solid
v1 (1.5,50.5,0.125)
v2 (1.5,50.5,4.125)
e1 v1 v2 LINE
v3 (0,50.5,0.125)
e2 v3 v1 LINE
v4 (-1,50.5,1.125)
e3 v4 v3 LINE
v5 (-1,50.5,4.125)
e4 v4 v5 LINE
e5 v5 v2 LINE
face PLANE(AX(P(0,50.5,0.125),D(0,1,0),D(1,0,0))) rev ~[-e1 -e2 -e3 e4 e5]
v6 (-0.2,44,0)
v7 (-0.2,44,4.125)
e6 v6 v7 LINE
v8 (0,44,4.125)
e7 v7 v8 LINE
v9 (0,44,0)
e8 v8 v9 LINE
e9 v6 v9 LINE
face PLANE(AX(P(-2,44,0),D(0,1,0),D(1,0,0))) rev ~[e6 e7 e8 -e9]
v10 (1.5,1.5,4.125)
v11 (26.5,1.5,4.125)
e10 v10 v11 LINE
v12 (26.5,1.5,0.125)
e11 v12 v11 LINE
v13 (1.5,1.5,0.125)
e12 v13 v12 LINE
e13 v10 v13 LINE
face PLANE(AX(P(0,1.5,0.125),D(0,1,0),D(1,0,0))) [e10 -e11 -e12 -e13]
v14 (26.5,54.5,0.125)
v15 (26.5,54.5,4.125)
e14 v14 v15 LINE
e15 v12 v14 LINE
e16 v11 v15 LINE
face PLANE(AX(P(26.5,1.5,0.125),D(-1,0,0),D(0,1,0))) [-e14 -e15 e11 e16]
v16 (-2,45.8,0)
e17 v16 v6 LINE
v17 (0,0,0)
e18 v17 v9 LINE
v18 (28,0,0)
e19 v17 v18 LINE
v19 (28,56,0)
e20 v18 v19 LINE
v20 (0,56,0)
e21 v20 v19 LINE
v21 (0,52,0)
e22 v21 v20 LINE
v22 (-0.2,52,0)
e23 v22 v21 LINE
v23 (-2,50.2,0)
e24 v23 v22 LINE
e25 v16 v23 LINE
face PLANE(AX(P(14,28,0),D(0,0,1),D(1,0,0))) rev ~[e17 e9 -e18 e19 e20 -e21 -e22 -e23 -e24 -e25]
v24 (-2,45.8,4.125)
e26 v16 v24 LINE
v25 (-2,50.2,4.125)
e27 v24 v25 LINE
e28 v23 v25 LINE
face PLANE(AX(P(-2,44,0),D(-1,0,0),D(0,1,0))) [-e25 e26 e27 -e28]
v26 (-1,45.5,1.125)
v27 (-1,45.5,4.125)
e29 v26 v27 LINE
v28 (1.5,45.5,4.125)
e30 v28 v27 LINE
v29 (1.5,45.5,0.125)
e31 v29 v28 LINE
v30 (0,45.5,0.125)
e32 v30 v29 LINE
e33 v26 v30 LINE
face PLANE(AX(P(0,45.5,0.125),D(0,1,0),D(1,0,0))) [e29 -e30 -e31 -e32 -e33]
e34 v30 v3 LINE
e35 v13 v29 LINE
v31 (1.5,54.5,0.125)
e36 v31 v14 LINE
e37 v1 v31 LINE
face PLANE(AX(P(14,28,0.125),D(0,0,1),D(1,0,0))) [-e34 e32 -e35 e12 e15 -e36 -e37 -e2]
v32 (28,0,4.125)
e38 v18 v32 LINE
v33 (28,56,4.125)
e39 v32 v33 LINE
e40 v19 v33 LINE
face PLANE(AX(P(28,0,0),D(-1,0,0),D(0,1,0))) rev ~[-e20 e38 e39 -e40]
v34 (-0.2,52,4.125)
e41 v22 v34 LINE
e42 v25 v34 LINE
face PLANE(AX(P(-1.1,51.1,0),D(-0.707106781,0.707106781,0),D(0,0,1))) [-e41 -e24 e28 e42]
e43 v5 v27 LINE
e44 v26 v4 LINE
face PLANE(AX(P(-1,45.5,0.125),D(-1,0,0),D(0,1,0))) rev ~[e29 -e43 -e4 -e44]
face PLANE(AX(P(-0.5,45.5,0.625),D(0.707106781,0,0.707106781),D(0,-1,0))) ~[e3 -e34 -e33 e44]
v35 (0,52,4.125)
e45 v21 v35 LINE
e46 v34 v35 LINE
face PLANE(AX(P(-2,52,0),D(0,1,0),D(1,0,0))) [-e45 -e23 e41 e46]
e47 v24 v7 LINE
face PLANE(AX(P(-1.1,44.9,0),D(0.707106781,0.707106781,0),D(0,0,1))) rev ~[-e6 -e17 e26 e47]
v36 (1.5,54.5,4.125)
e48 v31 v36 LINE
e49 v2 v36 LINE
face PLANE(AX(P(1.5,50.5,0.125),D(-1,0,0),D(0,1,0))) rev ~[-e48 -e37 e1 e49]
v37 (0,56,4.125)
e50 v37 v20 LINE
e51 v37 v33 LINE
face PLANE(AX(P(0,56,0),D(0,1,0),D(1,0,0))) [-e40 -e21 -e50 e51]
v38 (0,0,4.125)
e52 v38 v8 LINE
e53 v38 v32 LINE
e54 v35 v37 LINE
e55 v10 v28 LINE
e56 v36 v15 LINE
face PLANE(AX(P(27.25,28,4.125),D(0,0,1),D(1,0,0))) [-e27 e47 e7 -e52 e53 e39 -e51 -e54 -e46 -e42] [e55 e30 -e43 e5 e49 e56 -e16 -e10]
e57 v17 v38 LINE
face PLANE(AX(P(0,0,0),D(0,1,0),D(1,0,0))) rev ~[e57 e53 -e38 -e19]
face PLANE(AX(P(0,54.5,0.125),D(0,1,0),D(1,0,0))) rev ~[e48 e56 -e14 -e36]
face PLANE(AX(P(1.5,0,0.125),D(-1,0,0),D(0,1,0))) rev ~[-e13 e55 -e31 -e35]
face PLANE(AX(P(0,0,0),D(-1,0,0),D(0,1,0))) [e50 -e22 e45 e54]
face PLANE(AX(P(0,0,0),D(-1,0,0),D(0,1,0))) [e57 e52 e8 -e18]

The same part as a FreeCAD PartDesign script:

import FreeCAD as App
import Part
import Sketcher
from FreeCAD import Vector
Q = App.Units.Quantity


def edges_at(feature, points):
    """Names of the edges that pass closest to the given points."""
    edges = feature.Shape.Edges
    near = lambda p: min(range(len(edges)), key=lambda i: edges[i].distToShape(Part.Vertex(*p))[0])
    return sorted({f"Edge{near(p) + 1}" for p in points})

doc = App.newDocument("Part")
body = doc.addObject("PartDesign::Body", "Body")

# Sketch on XY plane
sketch1 = body.newObject("Sketcher::SketchObject", "Sketch")
sketch1.AttachmentSupport = (doc.getObject("XY_Plane"), [""])
sketch1.MapMode = "FlatFace"
sketch1.addGeometry(Part.LineSegment(Vector(0, 56, 0), Vector(0, 0, 0)), False)
sketch1.addGeometry(Part.LineSegment(Vector(0, 0, 0), Vector(28, 0, 0)), False)
sketch1.addGeometry(Part.LineSegment(Vector(28, 0, 0), Vector(28, 56, 0)), False)
sketch1.addGeometry(Part.LineSegment(Vector(28, 56, 0), Vector(0, 56, 0)), False)
sketch1.addConstraint(Sketcher.Constraint("Coincident", 0, 2, 1, 1))
sketch1.addConstraint(Sketcher.Constraint("Coincident", 1, 2, 2, 1))
sketch1.addConstraint(Sketcher.Constraint("Coincident", 2, 2, 3, 1))
sketch1.addConstraint(Sketcher.Constraint("Coincident", 3, 2, 0, 1))
sketch1.addConstraint(Sketcher.Constraint("Vertical", 0))
sketch1.addConstraint(Sketcher.Constraint("Horizontal", 1))
sketch1.addConstraint(Sketcher.Constraint("Vertical", 2))
sketch1.addConstraint(Sketcher.Constraint("Horizontal", 3))
sketch1.addConstraint(Sketcher.Constraint("Coincident", 0, 2, -1, 1))
sketch1.addConstraint(Sketcher.Constraint("DistanceX", 1, 1, 1, 2, Q("28 mm")))
sketch1.addConstraint(Sketcher.Constraint("DistanceY", 0, 2, 0, 1, Q("56 mm")))
pad1 = body.newObject("PartDesign::Pad", "Pad")
pad1.Profile = sketch1
pad1.Length = 0.125
body2 = doc.addObject("PartDesign::Body", "Body001")
body2.AllowCompound = True

# Sketch on XY plane
sketch2 = body2.newObject("Sketcher::SketchObject", "Sketch001")
sketch2.AttachmentSupport = (doc.getObject("XY_Plane001"), [""])
sketch2.MapMode = "FlatFace"
sketch2.AttachmentOffset = App.Placement(Vector(0, 0, 0.125), App.Rotation())
sketch2.addGeometry(Part.LineSegment(Vector(0, 45.5, 0), Vector(0, 0, 0)), False)
sketch2.addGeometry(Part.LineSegment(Vector(0, 0, 0), Vector(1.5, 0, 0)), False)
sketch2.addGeometry(Part.LineSegment(Vector(1.5, 0, 0), Vector(1.5, 45.5, 0)), False)
sketch2.addGeometry(Part.LineSegment(Vector(1.5, 45.5, 0), Vector(0, 45.5, 0)), False)
sketch2.addGeometry(Part.LineSegment(Vector(0, 54.5, 0), Vector(0, 50.5, 0)), False)
sketch2.addGeometry(Part.LineSegment(Vector(0, 50.5, 0), Vector(1.5, 50.5, 0)), False)
sketch2.addGeometry(Part.LineSegment(Vector(1.5, 50.5, 0), Vector(1.5, 54.5, 0)), False)
sketch2.addGeometry(Part.LineSegment(Vector(1.5, 54.5, 0), Vector(0, 54.5, 0)), False)
sketch2.addConstraint(Sketcher.Constraint("Coincident", 0, 2, 1, 1))
sketch2.addConstraint(Sketcher.Constraint("Coincident", 1, 2, 2, 1))
sketch2.addConstraint(Sketcher.Constraint("Coincident", 2, 2, 3, 1))
sketch2.addConstraint(Sketcher.Constraint("Coincident", 3, 2, 0, 1))
sketch2.addConstraint(Sketcher.Constraint("Coincident", 4, 2, 5, 1))
sketch2.addConstraint(Sketcher.Constraint("Coincident", 5, 2, 6, 1))
sketch2.addConstraint(Sketcher.Constraint("Coincident", 6, 2, 7, 1))
sketch2.addConstraint(Sketcher.Constraint("Coincident", 7, 2, 4, 1))
sketch2.addConstraint(Sketcher.Constraint("Vertical", 0))
sketch2.addConstraint(Sketcher.Constraint("Horizontal", 1))
sketch2.addConstraint(Sketcher.Constraint("Vertical", 2))
sketch2.addConstraint(Sketcher.Constraint("Horizontal", 3))
sketch2.addConstraint(Sketcher.Constraint("Vertical", 4))
sketch2.addConstraint(Sketcher.Constraint("Horizontal", 5))
sketch2.addConstraint(Sketcher.Constraint("Vertical", 6))
sketch2.addConstraint(Sketcher.Constraint("Horizontal", 7))
sketch2.addConstraint(Sketcher.Constraint("Coincident", 0, 2, -1, 1))
sketch2.addConstraint(Sketcher.Constraint("PointOnObject", 4, 2, -2))
sketch2.addConstraint(Sketcher.Constraint("Vertical", 2, 2, 5, 2))
sketch2.addConstraint(Sketcher.Constraint("DistanceY", 4, 2, 4, 1, Q("4 mm")))
sketch2.addConstraint(Sketcher.Constraint("DistanceX", 1, 1, 1, 2, Q("1.5 mm")))
sketch2.addConstraint(Sketcher.Constraint("DistanceY", 0, 2, 0, 1, Q("45.5 mm")))
sketch2.addConstraint(Sketcher.Constraint("DistanceY", 3, 2, 4, 2, Q("5 mm")))
pad2 = body2.newObject("PartDesign::Pad", "Pad001")
pad2.Profile = sketch2
pad2.Length = 4
body3 = doc.addObject("PartDesign::Body", "Body002")

# Sketch on XY plane
sketch3 = body3.newObject("Sketcher::SketchObject", "Sketch002")
sketch3.AttachmentSupport = (doc.getObject("XY_Plane002"), [""])
sketch3.MapMode = "FlatFace"
sketch3.AttachmentOffset = App.Placement(Vector(0, 0, 0.125), App.Rotation())
sketch3.addGeometry(Part.LineSegment(Vector(0, 1.5, 0), Vector(0, 0, 0)), False)
sketch3.addGeometry(Part.LineSegment(Vector(0, 0, 0), Vector(28, 0, 0)), False)
sketch3.addGeometry(Part.LineSegment(Vector(28, 0, 0), Vector(28, 1.5, 0)), False)
sketch3.addGeometry(Part.LineSegment(Vector(28, 1.5, 0), Vector(0, 1.5, 0)), False)
sketch3.addConstraint(Sketcher.Constraint("Coincident", 0, 2, 1, 1))
sketch3.addConstraint(Sketcher.Constraint("Coincident", 1, 2, 2, 1))
sketch3.addConstraint(Sketcher.Constraint("Coincident", 2, 2, 3, 1))
sketch3.addConstraint(Sketcher.Constraint("Coincident", 3, 2, 0, 1))
sketch3.addConstraint(Sketcher.Constraint("Vertical", 0))
sketch3.addConstraint(Sketcher.Constraint("Horizontal", 1))
sketch3.addConstraint(Sketcher.Constraint("Vertical", 2))
sketch3.addConstraint(Sketcher.Constraint("Horizontal", 3))
sketch3.addConstraint(Sketcher.Constraint("Coincident", 0, 2, -1, 1))
sketch3.addConstraint(Sketcher.Constraint("DistanceX", 1, 1, 1, 2, Q("28 mm")))
sketch3.addConstraint(Sketcher.Constraint("DistanceY", 0, 2, 0, 1, Q("1.5 mm")))
pad3 = body3.newObject("PartDesign::Pad", "Pad002")
pad3.Profile = sketch3
pad3.Length = 4
body4 = doc.addObject("PartDesign::Body", "Body003")

# Sketch on XY plane
sketch4 = body4.newObject("Sketcher::SketchObject", "Sketch003")
sketch4.AttachmentSupport = (doc.getObject("XY_Plane003"), [""])
sketch4.MapMode = "FlatFace"
sketch4.AttachmentOffset = App.Placement(Vector(0, 0, 0.125), App.Rotation())
sketch4.addGeometry(Part.LineSegment(Vector(26.5, 54.5, 0), Vector(26.5, 1.5, 0)), False)
sketch4.addGeometry(Part.LineSegment(Vector(26.5, 1.5, 0), Vector(28, 1.5, 0)), False)
sketch4.addGeometry(Part.LineSegment(Vector(28, 1.5, 0), Vector(28, 54.5, 0)), False)
sketch4.addGeometry(Part.LineSegment(Vector(28, 54.5, 0), Vector(26.5, 54.5, 0)), False)
sketch4.addConstraint(Sketcher.Constraint("Coincident", 0, 2, 1, 1))
sketch4.addConstraint(Sketcher.Constraint("Coincident", 1, 2, 2, 1))
sketch4.addConstraint(Sketcher.Constraint("Coincident", 2, 2, 3, 1))
sketch4.addConstraint(Sketcher.Constraint("Coincident", 3, 2, 0, 1))
sketch4.addConstraint(Sketcher.Constraint("Vertical", 0))
sketch4.addConstraint(Sketcher.Constraint("Horizontal", 1))
sketch4.addConstraint(Sketcher.Constraint("Vertical", 2))
sketch4.addConstraint(Sketcher.Constraint("Horizontal", 3))
sketch4.addConstraint(Sketcher.Constraint("DistanceY", 0, 2, 0, 1, Q("53 mm")))
sketch4.addConstraint(Sketcher.Constraint("DistanceX", 1, 1, 1, 2, Q("1.5 mm")))
sketch4.addConstraint(Sketcher.Constraint("DistanceX", -1, 1, 1, 2, Q("28 mm")))
sketch4.addConstraint(Sketcher.Constraint("DistanceY", -1, 1, 0, 2, Q("1.5 mm")))
pad4 = body4.newObject("PartDesign::Pad", "Pad003")
pad4.Profile = sketch4
pad4.Length = 4
body5 = doc.addObject("PartDesign::Body", "Body004")
body5.AllowCompound = True

# Sketch on XY plane
sketch5 = body5.newObject("Sketcher::SketchObject", "Sketch004")
sketch5.AttachmentSupport = (doc.getObject("XY_Plane004"), [""])
sketch5.MapMode = "FlatFace"
sketch5.AttachmentOffset = App.Placement(Vector(0, 0, 0.125), App.Rotation())
sketch5.addGeometry(Part.LineSegment(Vector(0, 56, 0), Vector(0, 54.5, 0)), False)
sketch5.addGeometry(Part.LineSegment(Vector(0, 54.5, 0), Vector(28, 54.5, 0)), False)
sketch5.addGeometry(Part.LineSegment(Vector(28, 54.5, 0), Vector(28, 56, 0)), False)
sketch5.addGeometry(Part.LineSegment(Vector(28, 56, 0), Vector(0, 56, 0)), False)
sketch5.addConstraint(Sketcher.Constraint("Coincident", 0, 2, 1, 1))
sketch5.addConstraint(Sketcher.Constraint("Coincident", 1, 2, 2, 1))
sketch5.addConstraint(Sketcher.Constraint("Coincident", 2, 2, 3, 1))
sketch5.addConstraint(Sketcher.Constraint("Coincident", 3, 2, 0, 1))
sketch5.addConstraint(Sketcher.Constraint("Vertical", 0))
sketch5.addConstraint(Sketcher.Constraint("Horizontal", 1))
sketch5.addConstraint(Sketcher.Constraint("Vertical", 2))
sketch5.addConstraint(Sketcher.Constraint("Horizontal", 3))
sketch5.addConstraint(Sketcher.Constraint("PointOnObject", 0, 2, -2))
sketch5.addConstraint(Sketcher.Constraint("DistanceX", 1, 1, 1, 2, Q("28 mm")))
sketch5.addConstraint(Sketcher.Constraint("DistanceY", 0, 2, 0, 1, Q("1.5 mm")))
sketch5.addConstraint(Sketcher.Constraint("DistanceY", -1, 1, 2, 2, Q("56 mm")))
pad5 = body5.newObject("PartDesign::Pad", "Pad004")
pad5.Profile = sketch5
pad5.Length = 4
doc.recompute()

boolean = body5.newObject("PartDesign::Boolean", "Boolean")
boolean.Type = "Fuse"
boolean.addObjects([body2])
doc.recompute()

boolean2 = body5.newObject("PartDesign::Boolean", "Boolean001")
boolean2.Type = "Fuse"
boolean2.addObjects([body3])
doc.recompute()

boolean3 = body5.newObject("PartDesign::Boolean", "Boolean002")
boolean3.Type = "Fuse"
boolean3.addObjects([body4])
body6 = doc.addObject("PartDesign::Body", "Body005")

# Sketch on XY plane
sketch6 = body6.newObject("Sketcher::SketchObject", "Sketch005")
sketch6.AttachmentSupport = (doc.getObject("XY_Plane005"), [""])
sketch6.MapMode = "FlatFace"
sketch6.AttachmentOffset = App.Placement(Vector(0, 0, 0.125), App.Rotation())
sketch6.addGeometry(Part.LineSegment(Vector(-1, 50, 0), Vector(-1, 46, 0)), False)
sketch6.addGeometry(Part.LineSegment(Vector(-1, 46, 0), Vector(4, 46, 0)), False)
sketch6.addGeometry(Part.LineSegment(Vector(4, 46, 0), Vector(4, 50, 0)), False)
sketch6.addGeometry(Part.LineSegment(Vector(4, 50, 0), Vector(-1, 50, 0)), False)
sketch6.addConstraint(Sketcher.Constraint("Coincident", 0, 2, 1, 1))
sketch6.addConstraint(Sketcher.Constraint("Coincident", 1, 2, 2, 1))
sketch6.addConstraint(Sketcher.Constraint("Coincident", 2, 2, 3, 1))
sketch6.addConstraint(Sketcher.Constraint("Coincident", 3, 2, 0, 1))
sketch6.addConstraint(Sketcher.Constraint("Vertical", 0))
sketch6.addConstraint(Sketcher.Constraint("Horizontal", 1))
sketch6.addConstraint(Sketcher.Constraint("Vertical", 2))
sketch6.addConstraint(Sketcher.Constraint("Horizontal", 3))
sketch6.addConstraint(Sketcher.Constraint("Equal", 3, 0))
sketch6.addConstraint(Sketcher.Constraint("DistanceX", 1, 1, 1, 2, Q("5 mm")))
sketch6.addConstraint(Sketcher.Constraint("DistanceX", 0, 2, -1, 1, Q("1 mm")))
sketch6.addConstraint(Sketcher.Constraint("DistanceY", -1, 1, 0, 2, Q("45.5 mm")))
pad6 = body6.newObject("PartDesign::Pad", "Pad005")
pad6.Profile = sketch6
pad6.Length = 5
doc.recompute()

chamfer = body6.newObject("PartDesign::Chamfer", "Chamfer")
chamfer.Base = (pad6, edges_at(pad6, [(-1, 48, 0.125)]))
chamfer.Size = 1
body7 = doc.addObject("PartDesign::Body", "Body006")

# Sketch on XY plane
sketch7 = body7.newObject("Sketcher::SketchObject", "Sketch006")
sketch7.AttachmentSupport = (doc.getObject("XY_Plane006"), [""])
sketch7.MapMode = "FlatFace"
sketch7.addGeometry(Part.LineSegment(Vector(-2, 52, 0), Vector(-2, 44, 0)), False)
sketch7.addGeometry(Part.LineSegment(Vector(-2, 44, 0), Vector(0, 44, 0)), False)
sketch7.addGeometry(Part.LineSegment(Vector(0, 44, 0), Vector(0, 52, 0)), False)
sketch7.addGeometry(Part.LineSegment(Vector(0, 52, 0), Vector(-2, 52, 0)), False)
sketch7.addConstraint(Sketcher.Constraint("Coincident", 0, 2, 1, 1))
sketch7.addConstraint(Sketcher.Constraint("Coincident", 1, 2, 2, 1))
sketch7.addConstraint(Sketcher.Constraint("Coincident", 2, 2, 3, 1))
sketch7.addConstraint(Sketcher.Constraint("Coincident", 3, 2, 0, 1))
sketch7.addConstraint(Sketcher.Constraint("Vertical", 0))
sketch7.addConstraint(Sketcher.Constraint("Horizontal", 1))
sketch7.addConstraint(Sketcher.Constraint("Vertical", 2))
sketch7.addConstraint(Sketcher.Constraint("Horizontal", 3))
sketch7.addConstraint(Sketcher.Constraint("PointOnObject", 1, 2, -2))
sketch7.addConstraint(Sketcher.Constraint("DistanceX", 1, 1, 1, 2, Q("2 mm")))
sketch7.addConstraint(Sketcher.Constraint("DistanceY", 0, 2, 0, 1, Q("8 mm")))
sketch7.addConstraint(Sketcher.Constraint("DistanceY", -1, 1, 0, 2, Q("44 mm")))
pad7 = body7.newObject("PartDesign::Pad", "Pad006")
pad7.Profile = sketch7
pad7.Length = 4.125
doc.recompute()

chamfer2 = body7.newObject("PartDesign::Chamfer", "Chamfer001")
chamfer2.Base = (pad7, edges_at(pad7, [(-2, 44, 2.062), (-2, 52, 2.062)]))
chamfer2.Size = 1.8
doc.recompute()

boolean4 = body7.newObject("PartDesign::Boolean", "Boolean003")
boolean4.Type = "Cut"
boolean4.addObjects([body6])
doc.recompute()

boolean5 = body7.newObject("PartDesign::Boolean", "Boolean004")
boolean5.Type = "Fuse"
boolean5.addObjects([body5])
doc.recompute()

boolean6 = body7.newObject("PartDesign::Boolean", "Boolean005")
boolean6.Type = "Fuse"
boolean6.addObjects([body])

doc.recompute()
